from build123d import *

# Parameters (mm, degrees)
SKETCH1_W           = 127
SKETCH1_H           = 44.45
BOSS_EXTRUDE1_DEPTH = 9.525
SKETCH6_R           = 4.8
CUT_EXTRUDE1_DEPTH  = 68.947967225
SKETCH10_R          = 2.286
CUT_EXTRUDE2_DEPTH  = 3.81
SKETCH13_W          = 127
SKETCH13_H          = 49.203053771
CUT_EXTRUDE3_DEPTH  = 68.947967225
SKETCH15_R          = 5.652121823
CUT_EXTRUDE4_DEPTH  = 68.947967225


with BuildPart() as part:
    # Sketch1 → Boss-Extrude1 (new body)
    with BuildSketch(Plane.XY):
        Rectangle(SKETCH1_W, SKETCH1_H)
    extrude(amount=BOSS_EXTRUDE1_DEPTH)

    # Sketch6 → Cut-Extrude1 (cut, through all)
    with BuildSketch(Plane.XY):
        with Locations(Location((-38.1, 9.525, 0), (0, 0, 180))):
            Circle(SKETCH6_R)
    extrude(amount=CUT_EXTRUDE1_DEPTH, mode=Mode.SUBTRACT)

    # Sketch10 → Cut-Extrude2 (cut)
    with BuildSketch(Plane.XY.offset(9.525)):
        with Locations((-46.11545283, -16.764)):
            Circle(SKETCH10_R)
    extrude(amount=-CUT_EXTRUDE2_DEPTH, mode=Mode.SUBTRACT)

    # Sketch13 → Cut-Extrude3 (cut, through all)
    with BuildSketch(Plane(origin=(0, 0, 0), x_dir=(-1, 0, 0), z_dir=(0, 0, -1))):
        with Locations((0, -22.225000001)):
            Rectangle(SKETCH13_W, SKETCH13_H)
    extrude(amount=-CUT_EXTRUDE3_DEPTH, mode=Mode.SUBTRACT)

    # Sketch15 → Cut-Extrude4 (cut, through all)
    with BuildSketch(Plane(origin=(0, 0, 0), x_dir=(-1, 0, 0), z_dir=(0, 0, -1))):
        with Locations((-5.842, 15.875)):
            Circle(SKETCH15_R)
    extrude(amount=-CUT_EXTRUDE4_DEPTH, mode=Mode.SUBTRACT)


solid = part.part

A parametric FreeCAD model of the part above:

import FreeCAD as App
import Part
import Sketcher

V = App.Vector
Q = App.Units.Quantity


def add_polygon(sketch, points):
    """Adds a closed chain of lines whose ends are joined by coincident constraints."""
    first, n = sketch.GeometryCount, len(points)
    for a, b in zip(points, points[1:] + points[:1]):
        sketch.addGeometry(Part.LineSegment(App.Vector(*a, 0), App.Vector(*b, 0)), False)
    for i in range(n):
        sketch.addConstraint(Sketcher.Constraint("Coincident", first + i, 2, first + (i + 1) % n, 1))

doc = App.newDocument("Part")
params = doc.addObject("Spreadsheet::Sheet", "Params")
for row, (alias, value) in enumerate([
    ("sketch1_width", "5 in"),
    ("sketch1_height", "1.75 in"),
    ("pad1_length", "0.375 in"),
    ("sketch3_diameter", "0.18 in"),
    ("pocket2_length", "0.15 in"),
    ("sketch4_width", "5 in"),
], start=1):
    params.set(f"A{row}", alias)
    params.set(f"B{row}", "=" + value)
    params.setAlias(f"B{row}", alias)

body = doc.addObject("PartDesign::Body", "Body")

# Sketch on XY plane
sketch1 = doc.addObject("Sketcher::SketchObject", "Sketch")
body.addObject(sketch1)
sketch1.AttachmentSupport = (doc.XY_Plane, [""])
sketch1.MapMode = "FlatFace"
add_polygon(sketch1, [(-63.5, 22.225), (-63.5, -22.225), (63.5, -22.225), (63.5, 22.225)])  # lines 0-3
sketch1.addConstraint(Sketcher.Constraint("Vertical", 0))
sketch1.addConstraint(Sketcher.Constraint("Horizontal", 1))
sketch1.addConstraint(Sketcher.Constraint("Vertical", 2))
sketch1.addConstraint(Sketcher.Constraint("Horizontal", 3))
sketch1.addConstraint(Sketcher.Constraint("Symmetric", 0, 2, 2, 2, -1, 1))
sketch1.addConstraint(Sketcher.Constraint("DistanceX", 1, 1, 1, 2, Q("5 in")))
sketch1.addConstraint(Sketcher.Constraint("DistanceY", 0, 2, 0, 1, Q("1.75 in")))
sketch1.setExpression("Constraints[9]", "Params.sketch1_width")
sketch1.setExpression("Constraints[10]", "Params.sketch1_height")
pad1 = doc.addObject("PartDesign::Pad", "Pad")
body.addObject(pad1)
pad1.Profile = sketch1
pad1.setExpression("Length", "Params.pad1_length")

# Sketch on XY plane
sketch2 = doc.addObject("Sketcher::SketchObject", "Sketch001")
body.addObject(sketch2)
sketch2.AttachmentSupport = (doc.XY_Plane, [""])
sketch2.MapMode = "FlatFace"
sketch2.addGeometry(Part.Circle(V(-38.1, 9.525, 0), V(0, 0, 1), 4.8), False)
sketch2.addConstraint(Sketcher.Constraint("DistanceX", 0, 3, -1, 1, Q("1.5 in")))
sketch2.addConstraint(Sketcher.Constraint("Diameter", 0, Q("9.6 mm")))
sketch2.addConstraint(Sketcher.Constraint("DistanceY", -1, 1, 0, 3, Q("0.375 in")))
pocket1 = doc.addObject("PartDesign::Pocket", "Pocket")
body.addObject(pocket1)
pocket1.Profile = sketch2
pocket1.Type = "ThroughAll"
pocket1.Reversed = True

# Sketch on XY plane
sketch3 = doc.addObject("Sketcher::SketchObject", "Sketch002")
body.addObject(sketch3)
sketch3.AttachmentSupport = (doc.XY_Plane, [""])
sketch3.MapMode = "FlatFace"
sketch3.AttachmentOffset = App.Placement(V(0, 0, 0.375 * 25.4), App.Rotation())
sketch3.addGeometry(Part.Circle(V(-46.115453, -16.764, 0), V(0, 0, 1), 2.286), False)
sketch3.addConstraint(Sketcher.Constraint("Diameter", 0, Q("0.18 in")))
sketch3.addConstraint(Sketcher.Constraint("DistanceY", 0, 3, -1, 1, Q("0.66 in")))
sketch3.addConstraint(Sketcher.Constraint("DistanceX", 0, 3, -1, 1, Q("46.115453 mm")))
sketch3.setExpression("Constraints[0]", "Params.sketch3_diameter")
pocket2 = doc.addObject("PartDesign::Pocket", "Pocket001")
body.addObject(pocket2)
pocket2.Profile = sketch3
pocket2.setExpression("Length", "Params.pocket2_length")

# Sketch on XY plane
sketch4 = doc.addObject("Sketcher::SketchObject", "Sketch003")
body.addObject(sketch4)
sketch4.AttachmentSupport = (doc.XY_Plane, [""])
sketch4.MapMode = "FlatFace"
add_polygon(sketch4, [(63.5, 2.376527), (63.5, -46.826527), (-63.5, -46.826527), (-63.5, 2.376527)])  # lines 0-3
sketch4.addConstraint(Sketcher.Constraint("Vertical", 0))
sketch4.addConstraint(Sketcher.Constraint("Horizontal", 1))
sketch4.addConstraint(Sketcher.Constraint("Vertical", 2))
sketch4.addConstraint(Sketcher.Constraint("Horizontal", 3))
sketch4.addConstraint(Sketcher.Constraint("DistanceX", 1, 2, 1, 1, Q("5 in")))
sketch4.addConstraint(Sketcher.Constraint("DistanceX", -1, 1, 0, 2, Q("2.5 in")))
sketch4.addConstraint(Sketcher.Constraint("DistanceY", 0, 2, 0, 1, Q("49.203054 mm")))
sketch4.addConstraint(Sketcher.Constraint("DistanceY", 0, 2, -1, 1, Q("46.826527 mm")))
sketch4.setExpression("Constraints[8]", "Params.sketch4_width")
pocket3 = doc.addObject("PartDesign::Pocket", "Pocket002")
body.addObject(pocket3)
pocket3.Profile = sketch4
pocket3.Type = "ThroughAll"
pocket3.Reversed = True

# Sketch on XY plane
sketch5 = doc.addObject("Sketcher::SketchObject", "Sketch004")
body.addObject(sketch5)
sketch5.AttachmentSupport = (doc.XY_Plane, [""])
sketch5.MapMode = "FlatFace"
sketch5.addGeometry(Part.Circle(V(5.842, 15.875, 0), V(0, 0, 1), 5.652122), False)
sketch5.addConstraint(Sketcher.Constraint("DistanceX", -1, 1, 0, 3, Q("0.23 in")))
sketch5.addConstraint(Sketcher.Constraint("DistanceY", -1, 1, 0, 3, Q("0.625 in")))
sketch5.addConstraint(Sketcher.Constraint("Diameter", 0, Q("11.304244 mm")))
pocket4 = doc.addObject("PartDesign::Pocket", "Pocket003")
body.addObject(pocket4)
pocket4.Profile = sketch5
pocket4.Type = "ThroughAll"
pocket4.Reversed = True

doc.recompute()
